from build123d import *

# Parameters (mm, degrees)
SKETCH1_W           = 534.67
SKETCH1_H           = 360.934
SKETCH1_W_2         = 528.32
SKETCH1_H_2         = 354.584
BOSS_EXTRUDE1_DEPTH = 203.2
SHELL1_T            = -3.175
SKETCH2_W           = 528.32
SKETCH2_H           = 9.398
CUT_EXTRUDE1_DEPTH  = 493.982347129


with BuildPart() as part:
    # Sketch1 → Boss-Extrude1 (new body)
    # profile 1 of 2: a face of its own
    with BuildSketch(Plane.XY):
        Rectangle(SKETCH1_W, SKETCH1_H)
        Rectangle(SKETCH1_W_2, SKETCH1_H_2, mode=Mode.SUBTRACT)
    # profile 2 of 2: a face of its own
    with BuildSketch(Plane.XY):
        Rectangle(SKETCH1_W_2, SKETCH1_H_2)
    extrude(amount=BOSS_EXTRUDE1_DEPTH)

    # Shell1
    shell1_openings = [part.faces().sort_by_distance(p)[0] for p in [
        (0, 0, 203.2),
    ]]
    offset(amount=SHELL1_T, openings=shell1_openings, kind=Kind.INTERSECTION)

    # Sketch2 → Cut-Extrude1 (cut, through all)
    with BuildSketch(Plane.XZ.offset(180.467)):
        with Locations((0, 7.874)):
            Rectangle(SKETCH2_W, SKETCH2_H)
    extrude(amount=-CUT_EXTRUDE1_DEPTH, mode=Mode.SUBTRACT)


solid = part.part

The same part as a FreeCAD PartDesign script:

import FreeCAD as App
import Part
import Sketcher
Q = App.Units.Quantity


def faces_at(feature, points):
    """Names of the faces that lie closest to the given points."""
    faces = feature.Shape.Faces
    near = lambda p: min(range(len(faces)), key=lambda i: faces[i].distToShape(Part.Vertex(*p))[0])
    return sorted({f"Face{near(p) + 1}" for p in points})

doc = App.newDocument("Part")
params = doc.addObject("Spreadsheet::Sheet", "Params")
for row, (alias, value) in enumerate([
    ("sketch1_width", "21.05 in"),
    ("sketch1_height", "14.21 in"),
    ("pad1_length", "8 in"),
    ("thickness_wall", "0.125 in"),
    ("sketch2_width", "20.8 in"),
    ("sketch2_height", "0.37 in"),
], start=1):
    params.set(f"A{row}", alias)
    params.set(f"B{row}", "=" + value)
    params.setAlias(f"B{row}", alias)

body = doc.addObject("PartDesign::Body", "Body")

sketch1 = body.newObject("Sketcher::SketchObject", "Sketch")
sketch1.AttachmentSupport = (doc.getObject("XY_Plane"), [""])
sketch1.MapMode = "FlatFace"
sketch1.addGeometry(Part.LineSegment(App.Vector(-267, 180, 0), App.Vector(-267, -180, 0)), False)
sketch1.addGeometry(Part.LineSegment(App.Vector(-267, -180, 0), App.Vector(267, -180, 0)), False)
sketch1.addGeometry(Part.LineSegment(App.Vector(267, -180, 0), App.Vector(267, 180, 0)), False)
sketch1.addGeometry(Part.LineSegment(App.Vector(267, 180, 0), App.Vector(-267, 180, 0)), False)
sketch1.addConstraint(Sketcher.Constraint("Coincident", 0, 2, 1, 1))
sketch1.addConstraint(Sketcher.Constraint("Coincident", 1, 2, 2, 1))
sketch1.addConstraint(Sketcher.Constraint("Coincident", 2, 2, 3, 1))
sketch1.addConstraint(Sketcher.Constraint("Coincident", 3, 2, 0, 1))
sketch1.addConstraint(Sketcher.Constraint("Vertical", 0))
sketch1.addConstraint(Sketcher.Constraint("Horizontal", 1))
sketch1.addConstraint(Sketcher.Constraint("Vertical", 2))
sketch1.addConstraint(Sketcher.Constraint("Horizontal", 3))
sketch1.addConstraint(Sketcher.Constraint("Symmetric", 0, 2, 2, 2, -1, 1))
sketch1.addConstraint(Sketcher.Constraint("DistanceX", 1, 1, 1, 2, Q("21.05 in")))
sketch1.addConstraint(Sketcher.Constraint("DistanceY", 0, 2, 0, 1, Q("14.21 in")))
sketch1.setExpression("Constraints[9]", "Params.sketch1_width")
sketch1.setExpression("Constraints[10]", "Params.sketch1_height")
pad1 = body.newObject("PartDesign::Pad", "Pad")
pad1.Profile = sketch1
pad1.setExpression("Length", "Params.pad1_length")
doc.recompute()

thickness = body.newObject("PartDesign::Thickness", "Thickness")
thickness.Base = (pad1, faces_at(pad1, [(0, 0, 203.2)]))
thickness.setExpression("Value", "Params.thickness_wall")
thickness.Reversed = True
thickness.Join = "Intersection"

sketch2 = body.newObject("Sketcher::SketchObject", "Sketch001")
sketch2.AttachmentSupport = (doc.getObject("XZ_Plane"), [""])
sketch2.MapMode = "FlatFace"
sketch2.AttachmentOffset = App.Placement(App.Vector(0, 0, 7.105 * 25.4), App.Rotation())
sketch2.addGeometry(Part.LineSegment(App.Vector(-264, 13, 0), App.Vector(-264, 3, 0)), False)
sketch2.addGeometry(Part.LineSegment(App.Vector(-264, 3, 0), App.Vector(264, 3, 0)), False)
sketch2.addGeometry(Part.LineSegment(App.Vector(264, 3, 0), App.Vector(264, 13, 0)), False)
sketch2.addGeometry(Part.LineSegment(App.Vector(264, 13, 0), App.Vector(-264, 13, 0)), False)
sketch2.addConstraint(Sketcher.Constraint("Coincident", 0, 2, 1, 1))
sketch2.addConstraint(Sketcher.Constraint("Coincident", 1, 2, 2, 1))
sketch2.addConstraint(Sketcher.Constraint("Coincident", 2, 2, 3, 1))
sketch2.addConstraint(Sketcher.Constraint("Coincident", 3, 2, 0, 1))
sketch2.addConstraint(Sketcher.Constraint("Vertical", 0))
sketch2.addConstraint(Sketcher.Constraint("Horizontal", 1))
sketch2.addConstraint(Sketcher.Constraint("Vertical", 2))
sketch2.addConstraint(Sketcher.Constraint("Horizontal", 3))
sketch2.addConstraint(Sketcher.Constraint("DistanceX", 1, 1, 1, 2, Q("20.8 in")))
sketch2.addConstraint(Sketcher.Constraint("DistanceY", 0, 2, 0, 1, Q("0.37 in")))
sketch2.addConstraint(Sketcher.Constraint("DistanceX", 0, 2, -1, 1, Q("10.4 in")))
sketch2.addConstraint(Sketcher.Constraint("DistanceY", -1, 1, 0, 2, Q("0.125 in")))
sketch2.setExpression("Constraints[8]", "Params.sketch2_width")
sketch2.setExpression("Constraints[9]", "Params.sketch2_height")
pocket1 = body.newObject("PartDesign::Pocket", "Pocket")
pocket1.Profile = sketch2
pocket1.Type = "ThroughAll"

doc.recompute()
